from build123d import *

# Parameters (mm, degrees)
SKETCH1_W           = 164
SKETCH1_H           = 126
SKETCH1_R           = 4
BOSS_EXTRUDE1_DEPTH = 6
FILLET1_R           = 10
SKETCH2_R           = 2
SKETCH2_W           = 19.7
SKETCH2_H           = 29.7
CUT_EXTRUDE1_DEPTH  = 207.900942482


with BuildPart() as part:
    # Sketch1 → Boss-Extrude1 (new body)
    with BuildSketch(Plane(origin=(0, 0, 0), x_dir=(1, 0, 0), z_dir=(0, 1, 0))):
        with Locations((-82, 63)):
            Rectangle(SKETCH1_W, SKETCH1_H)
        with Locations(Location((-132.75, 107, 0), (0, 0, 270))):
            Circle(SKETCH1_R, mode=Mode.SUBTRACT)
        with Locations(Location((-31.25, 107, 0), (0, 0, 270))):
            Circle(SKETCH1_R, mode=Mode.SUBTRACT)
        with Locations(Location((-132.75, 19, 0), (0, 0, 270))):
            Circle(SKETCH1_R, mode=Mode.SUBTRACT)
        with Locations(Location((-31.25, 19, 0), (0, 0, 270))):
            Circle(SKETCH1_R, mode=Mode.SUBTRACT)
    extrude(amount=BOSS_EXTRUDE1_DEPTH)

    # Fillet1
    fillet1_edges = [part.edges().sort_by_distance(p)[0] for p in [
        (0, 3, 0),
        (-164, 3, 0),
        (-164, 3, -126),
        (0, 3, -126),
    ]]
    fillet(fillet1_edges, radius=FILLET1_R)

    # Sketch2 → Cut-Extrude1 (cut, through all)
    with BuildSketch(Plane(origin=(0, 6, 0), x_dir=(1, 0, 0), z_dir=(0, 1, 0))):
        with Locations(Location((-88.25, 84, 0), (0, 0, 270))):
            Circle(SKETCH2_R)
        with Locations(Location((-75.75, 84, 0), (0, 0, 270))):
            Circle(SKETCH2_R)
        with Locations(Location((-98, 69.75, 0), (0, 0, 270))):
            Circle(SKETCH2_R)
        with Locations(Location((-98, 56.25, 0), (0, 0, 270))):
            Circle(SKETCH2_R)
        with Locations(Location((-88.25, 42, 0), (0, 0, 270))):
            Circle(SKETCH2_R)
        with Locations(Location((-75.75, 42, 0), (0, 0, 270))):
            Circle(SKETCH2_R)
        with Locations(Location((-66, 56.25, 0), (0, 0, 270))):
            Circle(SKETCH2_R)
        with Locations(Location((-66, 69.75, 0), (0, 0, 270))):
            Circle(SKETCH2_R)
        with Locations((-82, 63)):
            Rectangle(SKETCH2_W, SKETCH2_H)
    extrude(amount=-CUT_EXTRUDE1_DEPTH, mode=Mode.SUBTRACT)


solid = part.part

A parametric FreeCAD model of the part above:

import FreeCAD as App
import Part
import Sketcher
from FreeCAD import Vector
Q = App.Units.Quantity


def edges_at(feature, points):
    """Names of the edges that pass closest to the given points."""
    edges = feature.Shape.Edges
    near = lambda p: min(range(len(edges)), key=lambda i: edges[i].distToShape(Part.Vertex(*p))[0])
    return sorted({f"Edge{near(p) + 1}" for p in points})


def add_polygon(sketch, points):
    """Adds a closed chain of lines whose ends are joined by coincident constraints."""
    first, n = sketch.GeometryCount, len(points)
    for a, b in zip(points, points[1:] + points[:1]):
        sketch.addGeometry(Part.LineSegment(App.Vector(*a, 0), App.Vector(*b, 0)), False)
    for i in range(n):
        sketch.addConstraint(Sketcher.Constraint("Coincident", first + i, 2, first + (i + 1) % n, 1))

doc = App.newDocument("Part")
body = doc.addObject("PartDesign::Body", "Body")

# Sketch on XZ plane
sketch1 = body.newObject("Sketcher::SketchObject", "Sketch")
sketch1.AttachmentSupport = (doc.getObject("XZ_Plane"), [""])
sketch1.MapMode = "FlatFace"
add_polygon(sketch1, [(-164, -126), (-164, 0), (0, 0), (0, -126)])  # lines 0-3
sketch1.addGeometry(Part.Circle(Vector(-132.8, -19, 0), Vector(0, 0, 1), 4), False)  # 4
sketch1.addGeometry(Part.Circle(Vector(-31.2, -19, 0), Vector(0, 0, 1), 4), False)  # 5
sketch1.addGeometry(Part.Circle(Vector(-132.8, -107, 0), Vector(0, 0, 1), 4), False)  # 6
sketch1.addGeometry(Part.Circle(Vector(-31.2, -107, 0), Vector(0, 0, 1), 4), False)  # 7
sketch1.addConstraint([
    Sketcher.Constraint("Vertical", 0),
    Sketcher.Constraint("Horizontal", 1),
    Sketcher.Constraint("Vertical", 2),
    Sketcher.Constraint("Horizontal", 3),
    Sketcher.Constraint("Coincident", 1, 2, -1, 1),
    Sketcher.Constraint("Equal", 4, 5),
    Sketcher.Constraint("Equal", 5, 6),
    Sketcher.Constraint("Equal", 6, 7),
    Sketcher.Constraint("Horizontal", 4, 3, 5, 3),
    Sketcher.Constraint("Horizontal", 6, 3, 7, 3),
    Sketcher.Constraint("Vertical", 4, 3, 6, 3),
    Sketcher.Constraint("Vertical", 5, 3, 7, 3),
    Sketcher.Constraint("Diameter", 4, Q("8 mm")),
    Sketcher.Constraint("DistanceX", 1, 1, 1, 2, Q("164 mm")),
    Sketcher.Constraint("DistanceY", 0, 1, 0, 2, Q("126 mm")),
    Sketcher.Constraint("DistanceY", 4, 3, -1, 1, Q("19 mm")),
    Sketcher.Constraint("DistanceY", 6, 3, -1, 1, Q("107 mm")),
    Sketcher.Constraint("DistanceX", 4, 3, 5, 3, Q("101.5 mm")),
    Sketcher.Constraint("DistanceX", 4, 3, -1, 1, Q("132.75 mm")),
])
pad1 = body.newObject("PartDesign::Pad", "Pad")
pad1.Profile = sketch1
pad1.Length = 6
pad1.Reversed = True
doc.recompute()

fillet = body.newObject("PartDesign::Fillet", "Fillet")
fillet.Base = (pad1, edges_at(pad1, [
    (0, 3, 0),
    (-164, 3, 0),
    (-164, 3, -126),
    (0, 3, -126),
]))
fillet.Radius = 10

# Sketch on XZ plane
sketch2 = body.newObject("Sketcher::SketchObject", "Sketch001")
sketch2.AttachmentSupport = (doc.getObject("XZ_Plane"), [""])
sketch2.MapMode = "FlatFace"
sketch2.AttachmentOffset = App.Placement(Vector(0, 0, -6), App.Rotation())
sketch2.addGeometry(Part.Circle(Vector(-88.2, -84, 0), Vector(0, 0, 1), 2), False)  # 0
sketch2.addGeometry(Part.Circle(Vector(-75.8, -84, 0), Vector(0, 0, 1), 2), False)  # 1
sketch2.addGeometry(Part.Circle(Vector(-98, -69.8, 0), Vector(0, 0, 1), 2), False)  # 2
sketch2.addGeometry(Part.Circle(Vector(-98, -56.2, 0), Vector(0, 0, 1), 2), False)  # 3
sketch2.addGeometry(Part.Circle(Vector(-88.2, -42, 0), Vector(0, 0, 1), 2), False)  # 4
sketch2.addGeometry(Part.Circle(Vector(-75.8, -42, 0), Vector(0, 0, 1), 2), False)  # 5
sketch2.addGeometry(Part.Circle(Vector(-66, -56.2, 0), Vector(0, 0, 1), 2), False)  # 6
sketch2.addGeometry(Part.Circle(Vector(-66, -69.8, 0), Vector(0, 0, 1), 2), False)  # 7
add_polygon(sketch2, [(-91.8, -77.8), (-91.8, -48.1), (-72.2, -48.1), (-72.2, -77.8)])  # lines 8-11
sketch2.addConstraint([
    Sketcher.Constraint("Vertical", 8),
    Sketcher.Constraint("Horizontal", 9),
    Sketcher.Constraint("Vertical", 10),
    Sketcher.Constraint("Horizontal", 11),
    Sketcher.Constraint("Equal", 0, 1),
    Sketcher.Constraint("Equal", 1, 2),
    Sketcher.Constraint("Equal", 2, 3),
    Sketcher.Constraint("Equal", 3, 4),
    Sketcher.Constraint("Equal", 4, 5),
    Sketcher.Constraint("Equal", 5, 6),
    Sketcher.Constraint("Equal", 6, 7),
    Sketcher.Constraint("Horizontal", 0, 3, 1, 3),
    Sketcher.Constraint("Horizontal", 4, 3, 5, 3),
    Sketcher.Constraint("Horizontal", 3, 3, 6, 3),
    Sketcher.Constraint("Horizontal", 2, 3, 7, 3),
    Sketcher.Constraint("Vertical", 2, 3, 3, 3),
    Sketcher.Constraint("Vertical", 0, 3, 4, 3),
    Sketcher.Constraint("Vertical", 1, 3, 5, 3),
    Sketcher.Constraint("Vertical", 6, 3, 7, 3),
    Sketcher.Constraint("Diameter", 0, Q("4 mm")),
    Sketcher.Constraint("DistanceX", 9, 1, 9, 2, Q("19.7 mm")),
    Sketcher.Constraint("DistanceY", 8, 1, 8, 2, Q("29.7 mm")),
    Sketcher.Constraint("DistanceY", 0, 3, -1, 1, Q("84 mm")),
    Sketcher.Constraint("DistanceX", 2, 3, -1, 1, Q("98 mm")),
    Sketcher.Constraint("DistanceY", 4, 3, -1, 1, Q("42 mm")),
    Sketcher.Constraint("DistanceX", 6, 3, -1, 1, Q("66 mm")),
    Sketcher.Constraint("DistanceX", 0, 3, 1, 3, Q("12.5 mm")),
    Sketcher.Constraint("DistanceY", 2, 3, 3, 3, Q("13.5 mm")),
    Sketcher.Constraint("DistanceX", 8, 2, 4, 3, Q("3.6 mm")),
    Sketcher.Constraint("DistanceY", 3, 3, 8, 2, Q("8.1 mm")),
    Sketcher.Constraint("DistanceX", 0, 3, -1, 1, Q("88.25 mm")),
    Sketcher.Constraint("DistanceY", 2, 3, -1, 1, Q("69.75 mm")),
])
pocket1 = body.newObject("PartDesign::Pocket", "Pocket")
pocket1.Profile = sketch2
pocket1.Type = "ThroughAll"
pocket1.Reversed = True

doc.recompute()
